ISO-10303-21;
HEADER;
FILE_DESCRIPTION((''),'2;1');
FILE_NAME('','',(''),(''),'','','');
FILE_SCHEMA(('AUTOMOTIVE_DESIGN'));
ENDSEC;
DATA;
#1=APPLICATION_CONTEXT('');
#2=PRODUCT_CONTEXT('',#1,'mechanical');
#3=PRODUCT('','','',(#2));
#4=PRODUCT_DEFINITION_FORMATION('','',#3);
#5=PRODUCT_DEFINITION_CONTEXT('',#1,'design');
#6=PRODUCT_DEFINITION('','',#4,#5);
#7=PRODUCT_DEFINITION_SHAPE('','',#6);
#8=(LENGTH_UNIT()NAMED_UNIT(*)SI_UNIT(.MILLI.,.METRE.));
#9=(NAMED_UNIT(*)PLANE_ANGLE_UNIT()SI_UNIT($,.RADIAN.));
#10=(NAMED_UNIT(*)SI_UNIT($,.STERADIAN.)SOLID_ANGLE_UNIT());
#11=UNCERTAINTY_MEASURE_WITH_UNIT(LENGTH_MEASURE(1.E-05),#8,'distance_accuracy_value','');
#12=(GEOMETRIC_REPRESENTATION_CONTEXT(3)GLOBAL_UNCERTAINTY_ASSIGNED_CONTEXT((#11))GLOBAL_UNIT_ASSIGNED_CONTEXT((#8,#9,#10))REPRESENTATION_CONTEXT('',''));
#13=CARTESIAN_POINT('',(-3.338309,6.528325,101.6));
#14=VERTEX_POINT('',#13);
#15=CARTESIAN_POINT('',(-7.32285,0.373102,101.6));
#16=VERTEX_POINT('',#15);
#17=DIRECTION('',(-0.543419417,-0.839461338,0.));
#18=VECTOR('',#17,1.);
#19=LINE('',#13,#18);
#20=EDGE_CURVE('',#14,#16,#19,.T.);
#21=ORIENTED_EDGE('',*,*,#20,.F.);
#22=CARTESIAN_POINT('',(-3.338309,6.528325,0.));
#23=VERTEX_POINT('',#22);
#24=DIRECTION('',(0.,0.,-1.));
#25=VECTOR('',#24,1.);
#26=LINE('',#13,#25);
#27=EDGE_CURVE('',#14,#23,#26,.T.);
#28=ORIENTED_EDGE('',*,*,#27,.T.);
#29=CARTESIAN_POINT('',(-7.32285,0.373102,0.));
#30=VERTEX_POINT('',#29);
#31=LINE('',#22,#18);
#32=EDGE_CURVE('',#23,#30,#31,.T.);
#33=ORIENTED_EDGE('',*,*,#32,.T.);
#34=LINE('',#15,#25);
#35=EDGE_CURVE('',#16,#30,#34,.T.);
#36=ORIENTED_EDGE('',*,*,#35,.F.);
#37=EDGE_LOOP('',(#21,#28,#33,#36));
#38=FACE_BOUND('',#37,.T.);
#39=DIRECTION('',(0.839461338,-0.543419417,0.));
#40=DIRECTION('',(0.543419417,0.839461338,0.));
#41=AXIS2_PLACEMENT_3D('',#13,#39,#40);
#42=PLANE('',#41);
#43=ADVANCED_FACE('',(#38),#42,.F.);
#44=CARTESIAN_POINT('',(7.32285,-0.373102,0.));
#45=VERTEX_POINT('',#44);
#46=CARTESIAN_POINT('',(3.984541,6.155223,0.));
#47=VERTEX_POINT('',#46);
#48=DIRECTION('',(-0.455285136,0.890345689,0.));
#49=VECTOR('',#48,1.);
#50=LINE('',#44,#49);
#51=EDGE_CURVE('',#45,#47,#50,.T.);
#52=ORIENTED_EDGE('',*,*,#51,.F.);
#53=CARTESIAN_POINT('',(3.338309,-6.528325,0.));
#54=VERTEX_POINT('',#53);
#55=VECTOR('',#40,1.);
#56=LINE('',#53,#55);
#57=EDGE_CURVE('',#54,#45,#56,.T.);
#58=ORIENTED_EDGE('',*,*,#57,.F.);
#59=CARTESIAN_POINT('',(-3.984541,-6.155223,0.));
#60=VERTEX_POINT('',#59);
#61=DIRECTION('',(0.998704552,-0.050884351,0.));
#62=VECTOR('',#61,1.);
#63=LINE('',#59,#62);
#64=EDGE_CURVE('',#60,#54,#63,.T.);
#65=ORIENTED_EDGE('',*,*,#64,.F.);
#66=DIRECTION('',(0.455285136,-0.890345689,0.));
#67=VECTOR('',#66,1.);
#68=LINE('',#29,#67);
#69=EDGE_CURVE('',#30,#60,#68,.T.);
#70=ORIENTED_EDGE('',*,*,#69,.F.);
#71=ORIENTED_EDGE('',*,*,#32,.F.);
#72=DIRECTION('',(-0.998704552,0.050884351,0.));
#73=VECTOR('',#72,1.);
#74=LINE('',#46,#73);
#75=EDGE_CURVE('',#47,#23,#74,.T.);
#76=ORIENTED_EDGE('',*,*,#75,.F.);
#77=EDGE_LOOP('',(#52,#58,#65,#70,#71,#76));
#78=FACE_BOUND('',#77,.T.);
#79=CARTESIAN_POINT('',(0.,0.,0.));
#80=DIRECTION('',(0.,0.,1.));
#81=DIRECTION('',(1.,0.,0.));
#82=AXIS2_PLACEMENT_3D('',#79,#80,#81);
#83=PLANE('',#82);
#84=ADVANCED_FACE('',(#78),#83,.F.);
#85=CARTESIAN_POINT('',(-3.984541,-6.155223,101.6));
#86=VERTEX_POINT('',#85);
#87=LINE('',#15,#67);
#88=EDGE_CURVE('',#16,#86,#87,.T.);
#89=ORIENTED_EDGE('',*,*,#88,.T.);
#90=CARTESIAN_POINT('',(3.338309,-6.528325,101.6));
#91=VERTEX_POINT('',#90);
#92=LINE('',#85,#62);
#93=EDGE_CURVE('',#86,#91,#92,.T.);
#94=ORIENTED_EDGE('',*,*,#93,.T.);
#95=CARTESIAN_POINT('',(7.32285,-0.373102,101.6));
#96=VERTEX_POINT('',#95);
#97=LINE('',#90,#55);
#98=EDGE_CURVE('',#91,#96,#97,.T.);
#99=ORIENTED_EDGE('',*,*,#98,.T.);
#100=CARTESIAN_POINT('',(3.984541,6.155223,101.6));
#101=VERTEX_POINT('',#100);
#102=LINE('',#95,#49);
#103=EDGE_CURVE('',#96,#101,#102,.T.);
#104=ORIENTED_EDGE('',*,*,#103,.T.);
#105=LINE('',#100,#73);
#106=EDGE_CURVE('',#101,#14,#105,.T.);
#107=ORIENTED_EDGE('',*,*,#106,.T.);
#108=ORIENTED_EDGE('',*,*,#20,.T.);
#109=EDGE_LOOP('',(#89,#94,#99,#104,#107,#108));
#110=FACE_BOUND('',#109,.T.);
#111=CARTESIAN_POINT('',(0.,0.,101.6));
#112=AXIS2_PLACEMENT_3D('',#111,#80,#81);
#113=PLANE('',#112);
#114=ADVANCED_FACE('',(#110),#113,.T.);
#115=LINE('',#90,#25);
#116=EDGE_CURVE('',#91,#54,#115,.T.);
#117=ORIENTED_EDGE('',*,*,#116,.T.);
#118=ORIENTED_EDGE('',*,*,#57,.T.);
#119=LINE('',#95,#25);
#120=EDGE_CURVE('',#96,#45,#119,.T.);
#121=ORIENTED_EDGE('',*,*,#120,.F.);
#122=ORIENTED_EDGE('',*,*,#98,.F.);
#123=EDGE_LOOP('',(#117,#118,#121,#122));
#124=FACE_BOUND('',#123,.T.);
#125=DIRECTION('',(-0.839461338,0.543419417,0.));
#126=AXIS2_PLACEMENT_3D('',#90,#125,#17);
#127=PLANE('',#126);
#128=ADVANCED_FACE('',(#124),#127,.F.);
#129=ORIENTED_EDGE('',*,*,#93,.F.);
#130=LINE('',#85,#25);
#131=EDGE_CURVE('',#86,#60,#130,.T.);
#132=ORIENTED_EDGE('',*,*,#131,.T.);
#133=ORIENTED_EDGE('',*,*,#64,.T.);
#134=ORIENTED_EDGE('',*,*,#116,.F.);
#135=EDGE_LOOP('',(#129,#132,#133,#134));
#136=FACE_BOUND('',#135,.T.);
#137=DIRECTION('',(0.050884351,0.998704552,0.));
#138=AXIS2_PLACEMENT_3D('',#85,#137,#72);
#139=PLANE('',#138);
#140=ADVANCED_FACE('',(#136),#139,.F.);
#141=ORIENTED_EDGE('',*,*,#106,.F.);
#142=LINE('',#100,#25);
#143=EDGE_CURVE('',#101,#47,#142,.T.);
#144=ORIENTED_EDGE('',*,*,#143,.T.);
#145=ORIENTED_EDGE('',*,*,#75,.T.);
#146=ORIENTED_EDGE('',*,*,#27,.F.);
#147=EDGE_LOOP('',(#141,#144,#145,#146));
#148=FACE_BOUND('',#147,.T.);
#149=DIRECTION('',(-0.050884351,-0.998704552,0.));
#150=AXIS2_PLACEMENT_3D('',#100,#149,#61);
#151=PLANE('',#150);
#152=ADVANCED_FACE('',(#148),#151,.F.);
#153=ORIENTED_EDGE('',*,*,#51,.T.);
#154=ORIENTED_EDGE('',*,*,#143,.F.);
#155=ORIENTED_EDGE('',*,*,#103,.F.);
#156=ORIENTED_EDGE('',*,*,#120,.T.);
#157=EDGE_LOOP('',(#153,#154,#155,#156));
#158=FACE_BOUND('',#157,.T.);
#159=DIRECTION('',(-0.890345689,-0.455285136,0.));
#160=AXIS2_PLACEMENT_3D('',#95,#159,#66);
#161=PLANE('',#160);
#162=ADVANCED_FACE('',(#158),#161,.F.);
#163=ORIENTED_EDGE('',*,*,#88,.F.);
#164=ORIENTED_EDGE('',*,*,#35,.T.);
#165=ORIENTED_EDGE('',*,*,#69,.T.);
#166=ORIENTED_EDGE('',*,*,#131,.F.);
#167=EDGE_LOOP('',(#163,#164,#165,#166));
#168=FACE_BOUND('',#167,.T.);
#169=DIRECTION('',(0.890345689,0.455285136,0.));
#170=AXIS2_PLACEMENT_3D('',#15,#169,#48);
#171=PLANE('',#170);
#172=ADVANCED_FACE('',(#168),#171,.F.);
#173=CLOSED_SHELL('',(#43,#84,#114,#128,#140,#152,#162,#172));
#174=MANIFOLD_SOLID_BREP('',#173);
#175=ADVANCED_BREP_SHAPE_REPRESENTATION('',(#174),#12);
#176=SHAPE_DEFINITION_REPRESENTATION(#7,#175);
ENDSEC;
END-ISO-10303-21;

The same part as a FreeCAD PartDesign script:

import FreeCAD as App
import Part
import Sketcher

V = App.Vector
Q = App.Units.Quantity

doc = App.newDocument("Part")
body = doc.addObject("PartDesign::Body", "Body")

sketch1 = body.newObject("Sketcher::SketchObject", "Sketch")
sketch1.AttachmentSupport = (doc.getObject("XY_Plane"), [""])
sketch1.MapMode = "FlatFace"
sketch1.addGeometry([
    Part.LineSegment(V(4, 6, 0), V(-3, 7, 0)),
    Part.LineSegment(V(-3, 7, 0), V(-7, 0, 0)),
    Part.LineSegment(V(-7, 0, 0), V(-4, -6, 0)),
    Part.LineSegment(V(-4, -6, 0), V(3, -7, 0)),
    Part.LineSegment(V(3, -7, 0), V(7, 0, 0)),
    Part.LineSegment(V(7, 0, 0), V(4, 6, 0)),
], False)
sketch1.addConstraint([
    Sketcher.Constraint("Coincident", 0, 2, 1, 1),
    Sketcher.Constraint("Coincident", 1, 2, 2, 1),
    Sketcher.Constraint("Coincident", 2, 2, 3, 1),
    Sketcher.Constraint("Coincident", 3, 2, 4, 1),
    Sketcher.Constraint("Coincident", 4, 2, 5, 1),
    Sketcher.Constraint("Coincident", 5, 2, 0, 1),
    Sketcher.Constraint("Symmetric", 0, 2, 3, 2, -1, 1),
    Sketcher.Constraint("Symmetric", 1, 2, 4, 2, -1, 1),
    Sketcher.Constraint("Symmetric", 2, 2, 5, 2, -1, 1),
    Sketcher.Constraint("Equal", 0, 1),
    Sketcher.Constraint("Equal", 1, 2),
    Sketcher.Constraint("DistanceY", -1, 1, 1, 2, Q("0.373102 mm")),
    Sketcher.Constraint("DistanceY", 3, 2, 2, 2, Q("0.373102 mm")),
    Sketcher.Constraint("DistanceX", 1, 2, 4, 2, Q("14.645699 mm")),
    Sketcher.Constraint("Distance", 0, Q("7.332348 mm")),
])
pad1 = body.newObject("PartDesign::Pad", "Pad")
pad1.Profile = sketch1
pad1.Length = Q("4 in")

doc.recompute()
